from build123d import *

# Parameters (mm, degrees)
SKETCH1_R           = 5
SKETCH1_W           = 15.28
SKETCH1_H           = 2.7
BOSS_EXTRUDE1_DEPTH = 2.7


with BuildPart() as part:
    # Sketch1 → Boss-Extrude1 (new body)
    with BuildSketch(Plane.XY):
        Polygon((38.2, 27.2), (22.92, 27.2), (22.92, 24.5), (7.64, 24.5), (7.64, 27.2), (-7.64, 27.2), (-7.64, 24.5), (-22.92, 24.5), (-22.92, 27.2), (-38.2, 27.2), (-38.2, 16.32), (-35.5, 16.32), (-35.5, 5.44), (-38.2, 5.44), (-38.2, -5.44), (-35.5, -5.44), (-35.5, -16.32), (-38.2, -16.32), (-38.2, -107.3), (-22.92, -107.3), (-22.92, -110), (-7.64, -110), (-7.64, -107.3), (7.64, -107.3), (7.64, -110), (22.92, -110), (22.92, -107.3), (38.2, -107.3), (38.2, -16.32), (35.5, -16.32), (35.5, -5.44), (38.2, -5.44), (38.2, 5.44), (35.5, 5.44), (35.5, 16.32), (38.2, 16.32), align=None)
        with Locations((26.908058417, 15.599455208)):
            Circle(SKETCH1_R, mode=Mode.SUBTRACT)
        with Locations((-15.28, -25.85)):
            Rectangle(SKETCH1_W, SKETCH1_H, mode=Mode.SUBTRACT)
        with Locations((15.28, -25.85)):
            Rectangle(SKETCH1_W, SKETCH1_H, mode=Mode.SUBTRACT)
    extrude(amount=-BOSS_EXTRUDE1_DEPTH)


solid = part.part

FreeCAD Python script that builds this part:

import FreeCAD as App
import Part
import Sketcher
from FreeCAD import Vector
Q = App.Units.Quantity


def add_polygon(sketch, points):
    """Adds a closed chain of lines whose ends are joined by coincident constraints."""
    first, n = sketch.GeometryCount, len(points)
    for a, b in zip(points, points[1:] + points[:1]):
        sketch.addGeometry(Part.LineSegment(App.Vector(*a, 0), App.Vector(*b, 0)), False)
    for i in range(n):
        sketch.addConstraint(Sketcher.Constraint("Coincident", first + i, 2, first + (i + 1) % n, 1))

doc = App.newDocument("Part")
body = doc.addObject("PartDesign::Body", "Body")

# Sketch on XY plane
sketch1 = body.newObject("Sketcher::SketchObject", "Sketch")
sketch1.AttachmentSupport = (doc.getObject("XY_Plane"), [""])
sketch1.MapMode = "FlatFace"
add_polygon(sketch1, [(38.2, 27.2), (22.9, 27.2), (22.9, 24.5), (7.6, 24.5), (7.6, 27.2), (-7.6, 27.2), (-7.6, 24.5), (-22.9, 24.5), (-22.9, 27.2), (-38.2, 27.2), (-38.2, 16.3), (-35.5, 16.3), (-35.5, 5.4), (-38.2, 5.4), (-38.2, -5.4), (-35.5, -5.4), (-35.5, -16.3), (-38.2, -16.3), (-38.2, -107.3), (-22.9, -107.3), (-22.9, -110), (-7.6, -110), (-7.6, -107.3), (7.6, -107.3), (7.6, -110), (22.9, -110), (22.9, -107.3), (38.2, -107.3), (38.2, -16.3), (35.5, -16.3), (35.5, -5.4), (38.2, -5.4), (38.2, 5.4), (35.5, 5.4), (35.5, 16.3), (38.2, 16.3)])  # lines 0-35
add_polygon(sketch1, [(-7.6, -27.2), (-22.9, -27.2), (-22.9, -24.5), (-7.6, -24.5)])  # lines 36-39
add_polygon(sketch1, [(22.9, -27.2), (7.6, -27.2), (7.6, -24.5), (22.9, -24.5)])  # lines 40-43
sketch1.addGeometry(Part.Circle(Vector(26.9, 15.6, 0), Vector(0, 0, 1), 5), False)  # 44
sketch1.addConstraint(Sketcher.Constraint("Horizontal", 0))
sketch1.addConstraint(Sketcher.Constraint("Vertical", 1))
sketch1.addConstraint(Sketcher.Constraint("Horizontal", 2))
sketch1.addConstraint(Sketcher.Constraint("Vertical", 3))
sketch1.addConstraint(Sketcher.Constraint("Horizontal", 4))
sketch1.addConstraint(Sketcher.Constraint("Vertical", 5))
sketch1.addConstraint(Sketcher.Constraint("Horizontal", 6))
sketch1.addConstraint(Sketcher.Constraint("Vertical", 7))
sketch1.addConstraint(Sketcher.Constraint("Horizontal", 8))
sketch1.addConstraint(Sketcher.Constraint("Vertical", 9))
sketch1.addConstraint(Sketcher.Constraint("Horizontal", 10))
sketch1.addConstraint(Sketcher.Constraint("Vertical", 11))
sketch1.addConstraint(Sketcher.Constraint("Horizontal", 12))
sketch1.addConstraint(Sketcher.Constraint("Vertical", 13))
sketch1.addConstraint(Sketcher.Constraint("Horizontal", 14))
sketch1.addConstraint(Sketcher.Constraint("Vertical", 15))
sketch1.addConstraint(Sketcher.Constraint("Horizontal", 16))
sketch1.addConstraint(Sketcher.Constraint("Vertical", 17))
sketch1.addConstraint(Sketcher.Constraint("Horizontal", 18))
sketch1.addConstraint(Sketcher.Constraint("Vertical", 19))
sketch1.addConstraint(Sketcher.Constraint("Horizontal", 20))
sketch1.addConstraint(Sketcher.Constraint("Vertical", 21))
sketch1.addConstraint(Sketcher.Constraint("Horizontal", 22))
sketch1.addConstraint(Sketcher.Constraint("Vertical", 23))
sketch1.addConstraint(Sketcher.Constraint("Horizontal", 24))
sketch1.addConstraint(Sketcher.Constraint("Vertical", 25))
sketch1.addConstraint(Sketcher.Constraint("Horizontal", 26))
sketch1.addConstraint(Sketcher.Constraint("Vertical", 27))
sketch1.addConstraint(Sketcher.Constraint("Horizontal", 28))
sketch1.addConstraint(Sketcher.Constraint("Vertical", 29))
sketch1.addConstraint(Sketcher.Constraint("Horizontal", 30))
sketch1.addConstraint(Sketcher.Constraint("Vertical", 31))
sketch1.addConstraint(Sketcher.Constraint("Horizontal", 32))
sketch1.addConstraint(Sketcher.Constraint("Vertical", 33))
sketch1.addConstraint(Sketcher.Constraint("Horizontal", 34))
sketch1.addConstraint(Sketcher.Constraint("Vertical", 35))
sketch1.addConstraint(Sketcher.Constraint("Horizontal", 36))
sketch1.addConstraint(Sketcher.Constraint("Vertical", 37))
sketch1.addConstraint(Sketcher.Constraint("Horizontal", 38))
sketch1.addConstraint(Sketcher.Constraint("Vertical", 39))
sketch1.addConstraint(Sketcher.Constraint("Horizontal", 40))
sketch1.addConstraint(Sketcher.Constraint("Vertical", 41))
sketch1.addConstraint(Sketcher.Constraint("Horizontal", 42))
sketch1.addConstraint(Sketcher.Constraint("Vertical", 43))
sketch1.addConstraint(Sketcher.Constraint("Symmetric", 9, 2, 27, 2, -1, 1))
sketch1.addConstraint(Sketcher.Constraint("Symmetric", 11, 2, 29, 2, -1, 1))
sketch1.addConstraint(Sketcher.Constraint("Symmetric", 13, 2, 31, 2, -1, 1))
sketch1.addConstraint(Sketcher.Constraint("Symmetric", 15, 2, 33, 2, -1, 1))
sketch1.addConstraint(Sketcher.Constraint("Symmetric", 0, 2, 36, 2, -1, 1))
sketch1.addConstraint(Sketcher.Constraint("Symmetric", 2, 2, 38, 2, -1, 1))
sketch1.addConstraint(Sketcher.Constraint("Symmetric", 4, 2, 40, 2, -1, 1))
sketch1.addConstraint(Sketcher.Constraint("Symmetric", 6, 2, 42, 2, -1, 1))
sketch1.addConstraint(Sketcher.Constraint("Symmetric", 2, 2, 5, 2, -2))
sketch1.addConstraint(Sketcher.Constraint("Symmetric", 0, 2, 7, 2, -2))
sketch1.addConstraint(Sketcher.Constraint("Symmetric", 20, 2, 23, 2, -2))
sketch1.addConstraint(Sketcher.Constraint("Symmetric", 18, 2, 25, 2, -2))
sketch1.addConstraint(Sketcher.Constraint("Symmetric", 16, 2, 27, 2, -2))
sketch1.addConstraint(Sketcher.Constraint("Symmetric", 14, 2, 29, 2, -2))
sketch1.addConstraint(Sketcher.Constraint("Horizontal", 0, 2, 3, 2))
sketch1.addConstraint(Sketcher.Constraint("Horizontal", 18, 2, 21, 2))
sketch1.addConstraint(Sketcher.Constraint("Vertical", 9, 2, 12, 2))
sketch1.addConstraint(Sketcher.Constraint("Vertical", 7, 2, 18, 2))
sketch1.addConstraint(Sketcher.Constraint("Vertical", 5, 2, 20, 2))
sketch1.addConstraint(Sketcher.Constraint("Vertical", 31, 2, 34, 2))
sketch1.addConstraint(Sketcher.Constraint("Equal", 0, 2))
sketch1.addConstraint(Sketcher.Constraint("Equal", 2, 4))
sketch1.addConstraint(Sketcher.Constraint("Equal", 34, 1))
sketch1.addConstraint(Sketcher.Constraint("Equal", 9, 11))
sketch1.addConstraint(Sketcher.Constraint("Equal", 11, 13))
sketch1.addConstraint(Sketcher.Constraint("Equal", 7, 19))
sketch1.addConstraint(Sketcher.Constraint("Diameter", 44, Q("10 mm")))
sketch1.addConstraint(Sketcher.Constraint("DistanceX", 10, 1, 10, 2, Q("2.7 mm")))
sketch1.addConstraint(Sketcher.Constraint("DistanceY", 19, 2, -1, 1, Q("110 mm")))
sketch1.addConstraint(Sketcher.Constraint("DistanceX", 0, 2, 0, 1, Q("15.28 mm")))
sketch1.addConstraint(Sketcher.Constraint("DistanceY", 9, 2, 9, 1, Q("10.88 mm")))
sketch1.addConstraint(Sketcher.Constraint("DistanceX", -1, 1, 44, 3, Q("26.908058 mm")))
sketch1.addConstraint(Sketcher.Constraint("DistanceY", -1, 1, 44, 3, Q("15.599455 mm")))
pad1 = body.newObject("PartDesign::Pad", "Pad")
pad1.Profile = sketch1
pad1.Length = 2.7
pad1.Reversed = True

doc.recompute()
